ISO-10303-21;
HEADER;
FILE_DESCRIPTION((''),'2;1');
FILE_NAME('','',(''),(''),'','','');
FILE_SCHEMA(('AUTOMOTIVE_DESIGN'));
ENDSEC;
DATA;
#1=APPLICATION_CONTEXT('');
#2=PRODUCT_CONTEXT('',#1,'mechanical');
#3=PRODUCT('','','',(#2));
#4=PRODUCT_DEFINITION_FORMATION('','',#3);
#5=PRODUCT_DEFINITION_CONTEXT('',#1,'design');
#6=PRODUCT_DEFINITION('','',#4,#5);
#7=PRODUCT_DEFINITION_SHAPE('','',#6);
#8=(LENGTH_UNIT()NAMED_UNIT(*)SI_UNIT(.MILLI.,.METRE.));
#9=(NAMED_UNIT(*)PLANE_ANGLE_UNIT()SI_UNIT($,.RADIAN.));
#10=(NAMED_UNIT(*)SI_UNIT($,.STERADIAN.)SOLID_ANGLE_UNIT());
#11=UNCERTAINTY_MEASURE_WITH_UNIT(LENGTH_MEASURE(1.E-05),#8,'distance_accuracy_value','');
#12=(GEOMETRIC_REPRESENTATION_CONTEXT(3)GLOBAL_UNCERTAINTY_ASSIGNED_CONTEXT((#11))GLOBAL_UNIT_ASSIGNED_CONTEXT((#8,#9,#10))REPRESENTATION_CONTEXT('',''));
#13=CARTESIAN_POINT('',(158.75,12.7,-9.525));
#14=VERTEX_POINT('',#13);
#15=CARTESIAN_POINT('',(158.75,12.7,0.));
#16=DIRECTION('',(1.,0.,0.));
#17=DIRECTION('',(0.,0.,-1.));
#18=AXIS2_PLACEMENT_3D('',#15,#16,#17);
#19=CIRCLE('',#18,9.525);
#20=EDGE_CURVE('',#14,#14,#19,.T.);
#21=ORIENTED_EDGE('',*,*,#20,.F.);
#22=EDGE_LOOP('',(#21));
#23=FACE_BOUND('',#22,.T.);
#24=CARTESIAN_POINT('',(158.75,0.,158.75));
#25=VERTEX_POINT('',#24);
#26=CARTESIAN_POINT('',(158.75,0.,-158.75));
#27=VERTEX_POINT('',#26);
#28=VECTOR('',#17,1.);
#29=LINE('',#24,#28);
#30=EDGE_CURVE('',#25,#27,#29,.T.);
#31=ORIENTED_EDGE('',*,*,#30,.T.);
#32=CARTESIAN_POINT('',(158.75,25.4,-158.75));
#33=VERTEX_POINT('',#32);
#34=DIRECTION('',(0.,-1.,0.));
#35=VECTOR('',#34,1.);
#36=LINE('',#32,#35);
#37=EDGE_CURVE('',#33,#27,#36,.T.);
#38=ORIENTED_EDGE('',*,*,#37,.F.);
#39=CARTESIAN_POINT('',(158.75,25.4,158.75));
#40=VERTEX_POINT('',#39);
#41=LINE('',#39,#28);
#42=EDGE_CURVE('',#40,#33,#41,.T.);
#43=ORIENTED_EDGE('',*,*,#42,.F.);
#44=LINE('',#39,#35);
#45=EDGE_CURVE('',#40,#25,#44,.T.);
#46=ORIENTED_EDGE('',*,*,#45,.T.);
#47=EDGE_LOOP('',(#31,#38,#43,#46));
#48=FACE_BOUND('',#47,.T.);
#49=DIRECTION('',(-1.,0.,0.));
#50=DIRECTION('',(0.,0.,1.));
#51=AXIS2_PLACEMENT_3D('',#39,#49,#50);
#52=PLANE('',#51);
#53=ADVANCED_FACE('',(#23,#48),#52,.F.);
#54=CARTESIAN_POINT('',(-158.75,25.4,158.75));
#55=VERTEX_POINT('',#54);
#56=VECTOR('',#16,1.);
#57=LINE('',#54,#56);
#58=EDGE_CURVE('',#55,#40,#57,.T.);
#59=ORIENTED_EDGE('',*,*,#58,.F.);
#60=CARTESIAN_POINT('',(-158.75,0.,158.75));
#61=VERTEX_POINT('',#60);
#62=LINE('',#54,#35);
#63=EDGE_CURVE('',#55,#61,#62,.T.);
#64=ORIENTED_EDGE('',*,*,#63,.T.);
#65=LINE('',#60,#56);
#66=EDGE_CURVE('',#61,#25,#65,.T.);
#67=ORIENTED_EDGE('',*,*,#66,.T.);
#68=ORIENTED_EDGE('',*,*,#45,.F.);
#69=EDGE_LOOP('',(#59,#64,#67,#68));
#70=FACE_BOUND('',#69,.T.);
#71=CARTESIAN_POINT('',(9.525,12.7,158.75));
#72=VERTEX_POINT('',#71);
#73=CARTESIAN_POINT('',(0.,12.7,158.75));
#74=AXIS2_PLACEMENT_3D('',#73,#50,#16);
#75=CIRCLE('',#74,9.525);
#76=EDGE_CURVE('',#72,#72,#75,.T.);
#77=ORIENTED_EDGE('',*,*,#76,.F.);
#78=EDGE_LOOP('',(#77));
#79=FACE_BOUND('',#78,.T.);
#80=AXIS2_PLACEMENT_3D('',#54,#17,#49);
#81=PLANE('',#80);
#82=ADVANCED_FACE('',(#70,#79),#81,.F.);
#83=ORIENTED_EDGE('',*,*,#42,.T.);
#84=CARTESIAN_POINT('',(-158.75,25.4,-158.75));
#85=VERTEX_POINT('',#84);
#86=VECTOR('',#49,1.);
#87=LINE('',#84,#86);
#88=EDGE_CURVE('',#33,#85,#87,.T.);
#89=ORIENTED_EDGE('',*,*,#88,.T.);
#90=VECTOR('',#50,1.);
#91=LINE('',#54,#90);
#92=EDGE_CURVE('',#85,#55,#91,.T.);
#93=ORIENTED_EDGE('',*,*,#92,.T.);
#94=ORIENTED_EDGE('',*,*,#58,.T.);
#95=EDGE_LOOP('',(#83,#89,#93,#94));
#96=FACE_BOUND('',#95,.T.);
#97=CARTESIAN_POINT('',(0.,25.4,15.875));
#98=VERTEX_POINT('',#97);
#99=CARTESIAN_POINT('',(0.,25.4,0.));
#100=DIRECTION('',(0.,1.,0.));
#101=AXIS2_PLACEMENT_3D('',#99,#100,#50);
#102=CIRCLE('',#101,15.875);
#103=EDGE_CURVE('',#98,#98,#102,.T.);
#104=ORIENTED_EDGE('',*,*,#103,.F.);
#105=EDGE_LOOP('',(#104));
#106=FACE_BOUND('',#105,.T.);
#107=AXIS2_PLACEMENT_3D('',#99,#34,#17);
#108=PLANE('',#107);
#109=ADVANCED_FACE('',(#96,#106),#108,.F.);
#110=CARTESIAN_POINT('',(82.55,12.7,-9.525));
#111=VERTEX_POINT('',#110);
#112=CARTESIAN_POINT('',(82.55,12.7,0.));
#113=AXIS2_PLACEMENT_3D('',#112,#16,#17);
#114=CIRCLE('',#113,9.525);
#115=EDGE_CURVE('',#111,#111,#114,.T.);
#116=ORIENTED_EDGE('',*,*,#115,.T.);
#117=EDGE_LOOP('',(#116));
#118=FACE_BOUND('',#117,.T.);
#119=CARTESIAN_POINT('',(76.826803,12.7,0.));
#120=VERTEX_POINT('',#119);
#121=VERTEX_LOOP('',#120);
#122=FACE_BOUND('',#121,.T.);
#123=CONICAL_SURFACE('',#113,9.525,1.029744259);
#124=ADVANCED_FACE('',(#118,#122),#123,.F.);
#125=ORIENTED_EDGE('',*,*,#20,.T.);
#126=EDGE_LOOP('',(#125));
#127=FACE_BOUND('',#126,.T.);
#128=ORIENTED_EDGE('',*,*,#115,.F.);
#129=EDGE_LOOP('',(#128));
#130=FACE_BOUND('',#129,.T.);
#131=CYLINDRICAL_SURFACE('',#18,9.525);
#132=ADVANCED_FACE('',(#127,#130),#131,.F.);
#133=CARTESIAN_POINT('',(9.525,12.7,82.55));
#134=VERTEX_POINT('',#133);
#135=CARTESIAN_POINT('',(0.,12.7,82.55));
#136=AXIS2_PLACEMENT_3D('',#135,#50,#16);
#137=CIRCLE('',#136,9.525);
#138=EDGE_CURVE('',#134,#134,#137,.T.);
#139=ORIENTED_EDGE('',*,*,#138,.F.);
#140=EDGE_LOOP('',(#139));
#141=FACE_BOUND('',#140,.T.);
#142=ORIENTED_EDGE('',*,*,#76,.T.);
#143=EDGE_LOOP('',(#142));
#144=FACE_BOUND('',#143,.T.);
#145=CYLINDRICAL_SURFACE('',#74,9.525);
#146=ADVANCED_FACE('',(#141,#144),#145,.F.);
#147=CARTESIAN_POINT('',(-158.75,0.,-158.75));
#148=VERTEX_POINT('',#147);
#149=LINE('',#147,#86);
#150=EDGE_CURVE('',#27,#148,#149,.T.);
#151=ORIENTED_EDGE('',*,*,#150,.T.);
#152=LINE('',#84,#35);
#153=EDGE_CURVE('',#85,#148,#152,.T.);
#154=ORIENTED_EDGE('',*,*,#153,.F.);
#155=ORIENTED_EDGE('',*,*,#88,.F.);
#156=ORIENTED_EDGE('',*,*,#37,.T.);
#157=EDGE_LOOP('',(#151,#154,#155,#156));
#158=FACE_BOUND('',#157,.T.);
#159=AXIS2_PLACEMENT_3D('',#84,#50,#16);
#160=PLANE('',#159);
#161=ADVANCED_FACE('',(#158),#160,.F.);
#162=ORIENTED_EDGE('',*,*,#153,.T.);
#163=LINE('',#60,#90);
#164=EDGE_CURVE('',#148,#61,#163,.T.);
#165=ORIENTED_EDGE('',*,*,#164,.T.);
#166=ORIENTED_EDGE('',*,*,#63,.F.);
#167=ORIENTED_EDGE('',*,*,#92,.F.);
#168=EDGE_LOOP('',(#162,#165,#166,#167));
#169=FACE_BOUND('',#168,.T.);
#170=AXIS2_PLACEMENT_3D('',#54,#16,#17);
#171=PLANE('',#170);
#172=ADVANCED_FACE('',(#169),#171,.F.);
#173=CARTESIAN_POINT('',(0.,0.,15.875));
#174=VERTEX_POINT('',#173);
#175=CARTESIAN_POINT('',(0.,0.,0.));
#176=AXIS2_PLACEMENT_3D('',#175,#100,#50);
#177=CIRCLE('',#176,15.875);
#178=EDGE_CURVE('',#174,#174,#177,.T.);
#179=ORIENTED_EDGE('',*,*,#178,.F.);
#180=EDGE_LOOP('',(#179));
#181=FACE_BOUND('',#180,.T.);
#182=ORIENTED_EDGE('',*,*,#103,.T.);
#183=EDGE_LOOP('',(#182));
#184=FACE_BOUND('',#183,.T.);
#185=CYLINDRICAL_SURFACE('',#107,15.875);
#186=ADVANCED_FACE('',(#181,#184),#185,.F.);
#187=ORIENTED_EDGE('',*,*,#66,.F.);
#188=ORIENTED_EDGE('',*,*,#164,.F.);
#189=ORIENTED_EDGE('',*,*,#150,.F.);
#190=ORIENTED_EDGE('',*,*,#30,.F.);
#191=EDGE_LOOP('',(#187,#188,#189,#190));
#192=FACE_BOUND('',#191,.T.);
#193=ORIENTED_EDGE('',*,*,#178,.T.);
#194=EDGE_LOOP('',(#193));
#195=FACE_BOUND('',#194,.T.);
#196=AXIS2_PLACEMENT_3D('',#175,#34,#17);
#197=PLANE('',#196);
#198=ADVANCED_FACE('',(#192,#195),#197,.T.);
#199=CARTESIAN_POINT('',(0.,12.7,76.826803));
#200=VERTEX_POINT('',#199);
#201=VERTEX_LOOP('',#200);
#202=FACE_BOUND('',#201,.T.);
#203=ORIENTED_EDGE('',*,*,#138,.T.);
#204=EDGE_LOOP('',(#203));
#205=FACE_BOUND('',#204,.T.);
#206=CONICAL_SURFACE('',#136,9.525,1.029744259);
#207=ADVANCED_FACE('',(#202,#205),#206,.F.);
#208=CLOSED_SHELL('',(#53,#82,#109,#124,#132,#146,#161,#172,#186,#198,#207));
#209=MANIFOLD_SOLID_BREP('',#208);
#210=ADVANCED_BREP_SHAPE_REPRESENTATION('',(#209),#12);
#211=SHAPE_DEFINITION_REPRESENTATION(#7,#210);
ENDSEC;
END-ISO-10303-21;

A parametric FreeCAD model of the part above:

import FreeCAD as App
import Part
import Sketcher
from FreeCAD import Vector
Q = App.Units.Quantity

doc = App.newDocument("Part")
body = doc.addObject("PartDesign::Body", "Body")

sketch1 = body.newObject("Sketcher::SketchObject", "Sketch")
sketch1.AttachmentSupport = (doc.getObject("XZ_Plane"), [""])
sketch1.MapMode = "FlatFace"
sketch1.addGeometry([
    Part.LineSegment(Vector(-159, -159, 0), Vector(-159, 159, 0)),
    Part.LineSegment(Vector(-159, 159, 0), Vector(159, 159, 0)),
    Part.LineSegment(Vector(159, 159, 0), Vector(159, -159, 0)),
    Part.LineSegment(Vector(159, -159, 0), Vector(-159, -159, 0)),
    Part.Circle(Vector(0, 0, 0), Vector(0, 0, 1), 16),
], False)
sketch1.addConstraint([
    Sketcher.Constraint("Coincident", 0, 2, 1, 1),
    Sketcher.Constraint("Coincident", 1, 2, 2, 1),
    Sketcher.Constraint("Coincident", 2, 2, 3, 1),
    Sketcher.Constraint("Coincident", 3, 2, 0, 1),
    Sketcher.Constraint("Vertical", 0),
    Sketcher.Constraint("Horizontal", 1),
    Sketcher.Constraint("Vertical", 2),
    Sketcher.Constraint("Horizontal", 3),
    Sketcher.Constraint("Coincident", 4, 3, -1, 1),
    Sketcher.Constraint("Symmetric", 0, 2, 2, 2, -1, 1),
    Sketcher.Constraint("Equal", 3, 0),
    Sketcher.Constraint("Diameter", 4, Q("1.25 in")),
    Sketcher.Constraint("DistanceX", 1, 1, 1, 2, Q("12.5 in")),
])
pad1 = body.newObject("PartDesign::Pad", "Pad")
pad1.Profile = sketch1
pad1.Length = Q("1 in")
pad1.Reversed = True

sketch2 = body.newObject("Sketcher::SketchObject", "Sketch001")
sketch2.AttachmentSupport = (doc.getObject("YZ_Plane"), [""])
sketch2.MapMode = "FlatFace"
sketch2.AttachmentOffset = App.Placement(Vector(0, 0, 6.25 * 25.4), App.Rotation())
sketch2.addGeometry(Part.Circle(Vector(13, 0, 0), Vector(0, 0, 1), 10), False)
sketch2.addConstraint([
    Sketcher.Constraint("PointOnObject", 0, 3, -1),
    Sketcher.Constraint("Diameter", 0, Q("0.75 in")),
    Sketcher.Constraint("DistanceX", -1, 1, 0, 3, Q("0.5 in")),
])
doc.recompute()
hole = body.newObject("PartDesign::Hole", "Hole")
hole.Profile = sketch2
hole.ThreadType = "None"
hole.Diameter = Q("0.75 in")
hole.DepthType = "Dimension"
hole.Depth = Q("3 in")
hole.DrillPoint = "Angled"
hole.DrillPointAngle = 118

sketch3 = body.newObject("Sketcher::SketchObject", "Sketch002")
sketch3.AttachmentSupport = (doc.getObject("XY_Plane"), [""])
sketch3.MapMode = "FlatFace"
sketch3.AttachmentOffset = App.Placement(Vector(0, 0, 6.25 * 25.4), App.Rotation())
sketch3.addGeometry(Part.Circle(Vector(0, 13, 0), Vector(0, 0, 1), 10), False)
sketch3.addConstraint([
    Sketcher.Constraint("PointOnObject", 0, 3, -2),
    Sketcher.Constraint("Diameter", 0, Q("0.75 in")),
    Sketcher.Constraint("DistanceY", -1, 1, 0, 3, Q("0.5 in")),
])
doc.recompute()
hole2 = body.newObject("PartDesign::Hole", "Hole001")
hole2.Profile = sketch3
hole2.ThreadType = "None"
hole2.Diameter = Q("0.75 in")
hole2.DepthType = "Dimension"
hole2.Depth = Q("3 in")
hole2.DrillPoint = "Angled"
hole2.DrillPointAngle = 118

doc.recompute()
